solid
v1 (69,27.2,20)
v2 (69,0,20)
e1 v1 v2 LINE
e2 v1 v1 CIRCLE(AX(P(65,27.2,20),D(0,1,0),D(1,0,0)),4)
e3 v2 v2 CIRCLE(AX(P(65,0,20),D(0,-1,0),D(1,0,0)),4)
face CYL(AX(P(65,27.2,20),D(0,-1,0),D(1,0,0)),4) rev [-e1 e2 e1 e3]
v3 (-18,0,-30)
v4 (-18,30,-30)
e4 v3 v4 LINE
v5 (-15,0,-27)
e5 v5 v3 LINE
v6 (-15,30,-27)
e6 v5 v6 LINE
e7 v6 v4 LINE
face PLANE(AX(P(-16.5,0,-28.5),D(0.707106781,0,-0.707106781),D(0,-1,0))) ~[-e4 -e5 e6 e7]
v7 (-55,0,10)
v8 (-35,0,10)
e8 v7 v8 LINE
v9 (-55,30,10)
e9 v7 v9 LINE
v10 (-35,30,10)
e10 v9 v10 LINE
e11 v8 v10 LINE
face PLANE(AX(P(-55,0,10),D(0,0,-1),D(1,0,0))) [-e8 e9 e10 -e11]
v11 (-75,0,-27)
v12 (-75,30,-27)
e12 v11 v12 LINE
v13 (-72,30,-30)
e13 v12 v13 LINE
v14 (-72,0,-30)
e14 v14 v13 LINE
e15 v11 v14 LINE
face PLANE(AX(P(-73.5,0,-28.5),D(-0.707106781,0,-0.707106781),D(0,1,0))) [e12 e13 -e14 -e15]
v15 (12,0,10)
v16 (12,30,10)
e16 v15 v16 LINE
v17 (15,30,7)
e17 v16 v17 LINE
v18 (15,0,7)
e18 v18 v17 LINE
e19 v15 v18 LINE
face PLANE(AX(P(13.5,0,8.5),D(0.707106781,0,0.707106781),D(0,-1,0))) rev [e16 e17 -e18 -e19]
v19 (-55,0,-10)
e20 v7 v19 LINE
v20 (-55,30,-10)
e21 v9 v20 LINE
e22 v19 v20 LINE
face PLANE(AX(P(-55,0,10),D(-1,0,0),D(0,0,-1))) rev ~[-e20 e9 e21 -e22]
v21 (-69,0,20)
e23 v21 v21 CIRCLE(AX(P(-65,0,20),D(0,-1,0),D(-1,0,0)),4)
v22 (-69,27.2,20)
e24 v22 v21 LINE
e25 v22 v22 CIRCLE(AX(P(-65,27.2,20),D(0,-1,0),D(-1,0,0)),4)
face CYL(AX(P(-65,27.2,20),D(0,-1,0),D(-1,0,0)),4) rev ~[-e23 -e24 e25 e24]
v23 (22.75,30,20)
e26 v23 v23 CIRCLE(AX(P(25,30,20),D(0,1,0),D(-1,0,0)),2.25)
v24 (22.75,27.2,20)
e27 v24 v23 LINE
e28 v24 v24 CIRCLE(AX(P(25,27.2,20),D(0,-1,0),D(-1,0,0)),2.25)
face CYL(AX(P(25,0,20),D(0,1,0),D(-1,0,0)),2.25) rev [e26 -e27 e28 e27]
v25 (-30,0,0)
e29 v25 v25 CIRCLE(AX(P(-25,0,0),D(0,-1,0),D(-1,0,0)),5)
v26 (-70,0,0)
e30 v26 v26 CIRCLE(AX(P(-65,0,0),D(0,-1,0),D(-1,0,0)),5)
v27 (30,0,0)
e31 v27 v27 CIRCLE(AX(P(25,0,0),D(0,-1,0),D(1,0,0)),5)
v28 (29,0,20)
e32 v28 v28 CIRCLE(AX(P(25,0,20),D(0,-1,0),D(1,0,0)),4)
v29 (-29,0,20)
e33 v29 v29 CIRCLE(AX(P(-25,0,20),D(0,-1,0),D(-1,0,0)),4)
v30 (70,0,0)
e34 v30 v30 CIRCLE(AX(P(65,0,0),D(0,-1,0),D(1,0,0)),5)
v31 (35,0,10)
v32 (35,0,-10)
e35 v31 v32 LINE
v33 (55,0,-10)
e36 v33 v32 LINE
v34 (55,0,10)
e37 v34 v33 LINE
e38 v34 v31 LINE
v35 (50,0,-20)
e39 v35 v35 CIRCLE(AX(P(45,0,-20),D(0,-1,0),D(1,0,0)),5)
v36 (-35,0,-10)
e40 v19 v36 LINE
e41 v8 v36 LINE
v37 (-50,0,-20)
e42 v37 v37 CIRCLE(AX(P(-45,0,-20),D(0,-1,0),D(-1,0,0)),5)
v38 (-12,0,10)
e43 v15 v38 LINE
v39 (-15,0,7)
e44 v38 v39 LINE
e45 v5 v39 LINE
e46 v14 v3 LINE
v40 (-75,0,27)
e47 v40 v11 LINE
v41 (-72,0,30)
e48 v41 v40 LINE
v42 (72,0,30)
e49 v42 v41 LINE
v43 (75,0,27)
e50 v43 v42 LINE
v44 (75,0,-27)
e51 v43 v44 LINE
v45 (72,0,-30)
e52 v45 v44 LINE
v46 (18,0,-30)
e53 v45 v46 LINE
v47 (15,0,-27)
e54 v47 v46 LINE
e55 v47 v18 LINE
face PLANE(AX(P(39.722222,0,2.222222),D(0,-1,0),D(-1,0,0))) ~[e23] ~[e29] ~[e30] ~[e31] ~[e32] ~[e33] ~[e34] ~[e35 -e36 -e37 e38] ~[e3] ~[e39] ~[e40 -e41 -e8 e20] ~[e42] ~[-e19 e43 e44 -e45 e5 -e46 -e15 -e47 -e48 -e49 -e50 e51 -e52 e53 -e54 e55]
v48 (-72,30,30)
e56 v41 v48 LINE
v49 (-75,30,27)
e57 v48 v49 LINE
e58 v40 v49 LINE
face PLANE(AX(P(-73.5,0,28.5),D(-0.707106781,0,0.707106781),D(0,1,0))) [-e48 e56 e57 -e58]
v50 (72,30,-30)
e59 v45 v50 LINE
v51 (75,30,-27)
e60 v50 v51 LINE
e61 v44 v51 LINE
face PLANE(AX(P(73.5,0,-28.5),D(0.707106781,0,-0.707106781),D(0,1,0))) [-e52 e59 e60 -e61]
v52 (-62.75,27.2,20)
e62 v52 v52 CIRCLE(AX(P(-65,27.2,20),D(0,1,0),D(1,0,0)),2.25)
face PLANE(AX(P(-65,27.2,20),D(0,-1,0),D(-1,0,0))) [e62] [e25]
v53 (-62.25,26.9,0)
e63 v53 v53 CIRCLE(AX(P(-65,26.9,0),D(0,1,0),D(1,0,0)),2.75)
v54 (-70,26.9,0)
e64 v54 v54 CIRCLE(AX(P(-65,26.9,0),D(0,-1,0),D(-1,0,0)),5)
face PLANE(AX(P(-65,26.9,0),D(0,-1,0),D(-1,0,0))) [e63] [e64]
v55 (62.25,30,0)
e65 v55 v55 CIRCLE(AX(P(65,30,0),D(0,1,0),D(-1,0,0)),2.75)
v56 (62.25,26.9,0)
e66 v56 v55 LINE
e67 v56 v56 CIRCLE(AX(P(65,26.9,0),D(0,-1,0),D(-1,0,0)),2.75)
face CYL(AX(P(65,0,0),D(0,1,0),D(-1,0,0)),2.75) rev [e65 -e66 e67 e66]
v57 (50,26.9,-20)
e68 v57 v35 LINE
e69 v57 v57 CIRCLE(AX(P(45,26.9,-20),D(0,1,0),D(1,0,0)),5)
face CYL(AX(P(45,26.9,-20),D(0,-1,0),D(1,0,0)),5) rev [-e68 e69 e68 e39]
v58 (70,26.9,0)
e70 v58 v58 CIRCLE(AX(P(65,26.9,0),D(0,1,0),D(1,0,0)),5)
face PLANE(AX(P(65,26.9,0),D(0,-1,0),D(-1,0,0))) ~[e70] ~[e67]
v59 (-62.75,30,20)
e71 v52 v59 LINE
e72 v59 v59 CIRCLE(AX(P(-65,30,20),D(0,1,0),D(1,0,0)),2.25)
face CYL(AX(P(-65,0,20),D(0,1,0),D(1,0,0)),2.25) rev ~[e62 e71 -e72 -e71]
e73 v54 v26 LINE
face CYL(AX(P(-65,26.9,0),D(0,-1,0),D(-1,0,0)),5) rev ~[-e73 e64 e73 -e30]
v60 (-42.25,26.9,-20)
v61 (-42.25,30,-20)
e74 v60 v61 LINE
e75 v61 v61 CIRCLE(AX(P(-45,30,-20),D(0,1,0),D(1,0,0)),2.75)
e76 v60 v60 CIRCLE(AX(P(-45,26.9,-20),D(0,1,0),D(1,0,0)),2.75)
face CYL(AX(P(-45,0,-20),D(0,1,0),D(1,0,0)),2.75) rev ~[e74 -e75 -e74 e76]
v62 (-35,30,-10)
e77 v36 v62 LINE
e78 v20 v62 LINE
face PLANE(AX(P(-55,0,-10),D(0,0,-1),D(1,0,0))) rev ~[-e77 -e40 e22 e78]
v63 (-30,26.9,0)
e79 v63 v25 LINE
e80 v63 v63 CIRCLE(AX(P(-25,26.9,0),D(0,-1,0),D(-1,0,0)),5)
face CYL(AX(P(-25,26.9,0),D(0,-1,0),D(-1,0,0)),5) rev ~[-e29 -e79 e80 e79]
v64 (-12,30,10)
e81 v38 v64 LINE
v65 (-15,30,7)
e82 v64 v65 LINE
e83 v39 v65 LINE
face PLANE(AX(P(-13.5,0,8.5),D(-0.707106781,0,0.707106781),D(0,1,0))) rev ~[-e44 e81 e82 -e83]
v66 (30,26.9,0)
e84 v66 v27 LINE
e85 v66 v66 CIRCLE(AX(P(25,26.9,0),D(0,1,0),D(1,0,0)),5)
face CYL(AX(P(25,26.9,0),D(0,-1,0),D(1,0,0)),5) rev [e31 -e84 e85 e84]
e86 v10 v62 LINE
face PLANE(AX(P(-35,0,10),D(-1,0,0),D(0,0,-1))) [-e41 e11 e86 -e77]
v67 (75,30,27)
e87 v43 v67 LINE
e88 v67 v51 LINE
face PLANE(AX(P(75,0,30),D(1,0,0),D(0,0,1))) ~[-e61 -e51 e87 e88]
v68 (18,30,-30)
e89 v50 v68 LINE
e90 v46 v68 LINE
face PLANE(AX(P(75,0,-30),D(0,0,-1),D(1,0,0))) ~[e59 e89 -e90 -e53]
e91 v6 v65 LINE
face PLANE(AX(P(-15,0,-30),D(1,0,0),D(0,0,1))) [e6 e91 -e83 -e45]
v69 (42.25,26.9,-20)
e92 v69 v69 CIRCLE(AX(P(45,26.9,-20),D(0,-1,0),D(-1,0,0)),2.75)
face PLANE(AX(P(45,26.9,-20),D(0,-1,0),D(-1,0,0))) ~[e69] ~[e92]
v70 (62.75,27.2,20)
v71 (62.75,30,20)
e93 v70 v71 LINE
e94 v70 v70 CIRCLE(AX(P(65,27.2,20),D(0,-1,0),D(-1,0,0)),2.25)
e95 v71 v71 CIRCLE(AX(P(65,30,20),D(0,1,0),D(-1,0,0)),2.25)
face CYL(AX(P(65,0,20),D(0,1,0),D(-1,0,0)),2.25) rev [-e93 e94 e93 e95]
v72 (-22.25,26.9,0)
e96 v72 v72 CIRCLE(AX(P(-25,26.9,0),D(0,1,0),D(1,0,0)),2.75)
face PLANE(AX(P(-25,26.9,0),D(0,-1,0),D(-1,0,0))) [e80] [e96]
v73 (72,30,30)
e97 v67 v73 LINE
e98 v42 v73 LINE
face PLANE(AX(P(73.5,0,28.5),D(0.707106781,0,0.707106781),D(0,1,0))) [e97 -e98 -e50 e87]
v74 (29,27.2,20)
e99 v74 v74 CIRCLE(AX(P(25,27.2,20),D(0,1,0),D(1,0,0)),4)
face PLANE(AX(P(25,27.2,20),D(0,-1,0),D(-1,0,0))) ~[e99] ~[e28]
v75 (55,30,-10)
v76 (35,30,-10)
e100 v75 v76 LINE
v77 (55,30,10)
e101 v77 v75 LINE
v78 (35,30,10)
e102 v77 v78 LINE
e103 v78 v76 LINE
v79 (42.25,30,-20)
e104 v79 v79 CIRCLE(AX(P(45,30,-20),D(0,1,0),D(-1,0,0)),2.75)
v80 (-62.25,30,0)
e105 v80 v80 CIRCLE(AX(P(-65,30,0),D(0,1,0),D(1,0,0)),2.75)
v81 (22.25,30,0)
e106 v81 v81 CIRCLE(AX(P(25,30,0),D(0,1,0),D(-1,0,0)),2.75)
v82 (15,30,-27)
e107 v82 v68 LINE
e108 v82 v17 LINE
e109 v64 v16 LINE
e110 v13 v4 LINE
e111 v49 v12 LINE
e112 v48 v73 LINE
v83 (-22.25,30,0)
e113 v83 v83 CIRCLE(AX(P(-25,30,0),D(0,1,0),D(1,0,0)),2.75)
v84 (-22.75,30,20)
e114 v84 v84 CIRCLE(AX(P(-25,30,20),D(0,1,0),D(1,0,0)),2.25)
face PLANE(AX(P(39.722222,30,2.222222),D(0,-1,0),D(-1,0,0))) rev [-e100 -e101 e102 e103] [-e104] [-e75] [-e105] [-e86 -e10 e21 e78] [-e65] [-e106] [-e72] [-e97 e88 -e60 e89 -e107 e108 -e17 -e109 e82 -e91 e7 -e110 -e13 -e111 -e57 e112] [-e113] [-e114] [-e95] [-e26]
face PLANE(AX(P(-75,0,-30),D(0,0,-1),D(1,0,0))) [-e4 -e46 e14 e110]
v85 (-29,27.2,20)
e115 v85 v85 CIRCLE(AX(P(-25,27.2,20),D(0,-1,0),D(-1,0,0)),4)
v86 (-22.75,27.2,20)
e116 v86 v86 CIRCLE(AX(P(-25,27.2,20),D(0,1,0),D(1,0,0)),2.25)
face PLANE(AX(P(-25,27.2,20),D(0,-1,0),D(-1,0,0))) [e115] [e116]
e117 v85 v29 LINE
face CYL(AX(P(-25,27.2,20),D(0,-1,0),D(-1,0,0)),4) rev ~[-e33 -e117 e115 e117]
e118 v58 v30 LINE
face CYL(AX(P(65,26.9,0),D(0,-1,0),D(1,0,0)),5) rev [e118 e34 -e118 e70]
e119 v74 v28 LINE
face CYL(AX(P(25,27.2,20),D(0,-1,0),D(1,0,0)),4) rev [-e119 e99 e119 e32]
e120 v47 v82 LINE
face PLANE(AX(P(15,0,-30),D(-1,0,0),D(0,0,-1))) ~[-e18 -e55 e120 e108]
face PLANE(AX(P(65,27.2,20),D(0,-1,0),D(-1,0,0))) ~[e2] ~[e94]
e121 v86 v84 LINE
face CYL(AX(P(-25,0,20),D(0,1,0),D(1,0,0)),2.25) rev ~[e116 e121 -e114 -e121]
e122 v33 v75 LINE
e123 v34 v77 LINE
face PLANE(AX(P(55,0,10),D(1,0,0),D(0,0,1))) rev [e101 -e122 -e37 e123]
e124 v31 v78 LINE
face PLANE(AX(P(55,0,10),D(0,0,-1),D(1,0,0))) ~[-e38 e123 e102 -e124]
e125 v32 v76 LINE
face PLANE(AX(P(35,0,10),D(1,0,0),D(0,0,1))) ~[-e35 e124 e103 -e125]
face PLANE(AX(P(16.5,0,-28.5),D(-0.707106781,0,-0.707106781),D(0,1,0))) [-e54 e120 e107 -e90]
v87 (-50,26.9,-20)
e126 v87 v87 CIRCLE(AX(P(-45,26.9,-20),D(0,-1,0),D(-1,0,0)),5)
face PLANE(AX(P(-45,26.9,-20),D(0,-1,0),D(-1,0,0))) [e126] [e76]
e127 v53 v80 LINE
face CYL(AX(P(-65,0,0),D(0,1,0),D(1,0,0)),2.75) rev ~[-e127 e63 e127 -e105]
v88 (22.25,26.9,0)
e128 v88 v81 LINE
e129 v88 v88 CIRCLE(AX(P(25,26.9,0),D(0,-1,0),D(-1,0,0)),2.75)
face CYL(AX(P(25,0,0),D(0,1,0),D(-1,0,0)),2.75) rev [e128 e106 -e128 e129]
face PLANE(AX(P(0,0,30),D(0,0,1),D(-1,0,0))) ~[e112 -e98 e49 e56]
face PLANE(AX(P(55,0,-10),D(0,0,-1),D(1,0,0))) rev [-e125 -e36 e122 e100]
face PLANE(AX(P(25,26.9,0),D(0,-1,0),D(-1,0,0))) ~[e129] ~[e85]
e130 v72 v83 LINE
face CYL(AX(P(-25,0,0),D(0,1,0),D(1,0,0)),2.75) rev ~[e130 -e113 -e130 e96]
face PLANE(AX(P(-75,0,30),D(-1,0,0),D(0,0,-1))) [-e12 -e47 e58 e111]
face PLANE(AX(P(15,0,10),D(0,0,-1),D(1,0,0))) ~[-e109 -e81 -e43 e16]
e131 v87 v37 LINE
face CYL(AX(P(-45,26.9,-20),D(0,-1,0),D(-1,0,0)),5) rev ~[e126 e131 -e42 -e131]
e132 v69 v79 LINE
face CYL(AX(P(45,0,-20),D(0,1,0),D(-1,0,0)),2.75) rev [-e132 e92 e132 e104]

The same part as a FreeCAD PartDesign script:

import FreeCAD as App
import Part
import Sketcher
from FreeCAD import Vector


def edges_at(feature, points):
    """Names of the edges that pass closest to the given points."""
    edges = feature.Shape.Edges
    near = lambda p: min(range(len(edges)), key=lambda i: edges[i].distToShape(Part.Vertex(*p))[0])
    return sorted({f"Edge{near(p) + 1}" for p in points})

doc = App.newDocument("Part")
body = doc.addObject("PartDesign::Body", "Body")

# Sketch on XZ plane
sketch1 = doc.addObject("Sketcher::SketchObject", "Sketch")
body.addObject(sketch1)
sketch1.AttachmentSupport = (doc.XZ_Plane, [""])
sketch1.MapMode = "FlatFace"
sketch1.addGeometry(Part.LineSegment(Vector(0, 30, 0), Vector(0, 10, 0)), False)
sketch1.addGeometry(Part.LineSegment(Vector(0, 10, 0), Vector(-15, 10, 0)), False)
sketch1.addGeometry(Part.LineSegment(Vector(-15, 10, 0), Vector(-15, -30, 0)), False)
sketch1.addGeometry(Part.LineSegment(Vector(-15, -30, 0), Vector(-75, -30, 0)), False)
sketch1.addGeometry(Part.LineSegment(Vector(-75, -30, 0), Vector(-75, 30, 0)), False)
sketch1.addGeometry(Part.LineSegment(Vector(-75, 30, 0), Vector(0, 30, 0)), False)
sketch1.addGeometry(Part.LineSegment(Vector(-55, 10, 0), Vector(-55, -10, 0)), False)
sketch1.addGeometry(Part.LineSegment(Vector(-55, -10, 0), Vector(-35, -10, 0)), False)
sketch1.addGeometry(Part.LineSegment(Vector(-35, -10, 0), Vector(-35, 10, 0)), False)
sketch1.addGeometry(Part.LineSegment(Vector(-35, 10, 0), Vector(-55, 10, 0)), False)
sketch1.addConstraint(Sketcher.Constraint("Coincident", 0, 2, 1, 1))
sketch1.addConstraint(Sketcher.Constraint("Coincident", 1, 2, 2, 1))
sketch1.addConstraint(Sketcher.Constraint("Coincident", 2, 2, 3, 1))
sketch1.addConstraint(Sketcher.Constraint("Coincident", 3, 2, 4, 1))
sketch1.addConstraint(Sketcher.Constraint("Coincident", 4, 2, 5, 1))
sketch1.addConstraint(Sketcher.Constraint("Coincident", 5, 2, 0, 1))
sketch1.addConstraint(Sketcher.Constraint("Coincident", 6, 2, 7, 1))
sketch1.addConstraint(Sketcher.Constraint("Coincident", 7, 2, 8, 1))
sketch1.addConstraint(Sketcher.Constraint("Coincident", 8, 2, 9, 1))
sketch1.addConstraint(Sketcher.Constraint("Coincident", 9, 2, 6, 1))
sketch1.addConstraint(Sketcher.Constraint("Vertical", 0))
sketch1.addConstraint(Sketcher.Constraint("Horizontal", 1))
sketch1.addConstraint(Sketcher.Constraint("Vertical", 2))
sketch1.addConstraint(Sketcher.Constraint("Horizontal", 3))
sketch1.addConstraint(Sketcher.Constraint("Vertical", 4))
sketch1.addConstraint(Sketcher.Constraint("Horizontal", 5))
sketch1.addConstraint(Sketcher.Constraint("Vertical", 6))
sketch1.addConstraint(Sketcher.Constraint("Horizontal", 7))
sketch1.addConstraint(Sketcher.Constraint("Vertical", 8))
sketch1.addConstraint(Sketcher.Constraint("Horizontal", 9))
sketch1.addConstraint(Sketcher.Constraint("PointOnObject", 0, 2, -2))
sketch1.addConstraint(Sketcher.Constraint("Horizontal", 1, 2, 8, 2))
sketch1.addConstraint(Sketcher.Constraint("Equal", 9, 0))
sketch1.addConstraint(Sketcher.Constraint("Equal", 3, 4))
sketch1.addConstraint(Sketcher.Constraint("Equal", 0, 6))
sketch1.addConstraint(Sketcher.Constraint("DistanceX", 1, 2, 1, 1, 15.0))
sketch1.addConstraint(Sketcher.Constraint("DistanceX", 3, 2, 3, 1, 60.0))
sketch1.addConstraint(Sketcher.Constraint("DistanceX", 7, 1, 7, 2, 20.0))
sketch1.addConstraint(Sketcher.Constraint("DistanceY", -1, 1, 0, 2, 10.0))
sketch1.addConstraint(Sketcher.Constraint("DistanceX", 6, 2, -1, 1, 55.0))
pad1 = doc.addObject("PartDesign::Pad", "Pad")
body.addObject(pad1)
pad1.Profile = sketch1
pad1.Length = 30
pad1.Reversed = True

# Sketch on XZ plane
sketch2 = doc.addObject("Sketcher::SketchObject", "Sketch001")
body.addObject(sketch2)
sketch2.AttachmentSupport = (doc.XZ_Plane, [""])
sketch2.MapMode = "FlatFace"
sketch2.addGeometry(Part.Circle(Vector(-45, -20, 0), Vector(0, 0, 1), 2.8), False)
sketch2.addGeometry(Part.Circle(Vector(-25, 0, 0), Vector(0, 0, 1), 2.8), False)
sketch2.addGeometry(Part.Circle(Vector(-65, 0, 0), Vector(0, 0, 1), 2.8), False)
sketch2.addConstraint(Sketcher.Constraint("Equal", 0, 1))
sketch2.addConstraint(Sketcher.Constraint("Equal", 1, 2))
sketch2.addConstraint(Sketcher.Constraint("PointOnObject", 1, 3, -1))
sketch2.addConstraint(Sketcher.Constraint("PointOnObject", 2, 3, -1))
sketch2.addConstraint(Sketcher.Constraint("Diameter", 0, 5.5))
sketch2.addConstraint(Sketcher.Constraint("DistanceX", 0, 3, -1, 1, 45.0))
sketch2.addConstraint(Sketcher.Constraint("DistanceY", 0, 3, -1, 1, 20.0))
sketch2.addConstraint(Sketcher.Constraint("DistanceX", 1, 3, -1, 1, 25.0))
sketch2.addConstraint(Sketcher.Constraint("DistanceX", 2, 3, -1, 1, 65.0))
doc.recompute()
hole = doc.addObject("PartDesign::Hole", "Hole")
body.addObject(hole)
hole.Profile = sketch2
hole.ThreadType = "None"
hole.Diameter = 5.5
hole.DepthType = "ThroughAll"
hole.HoleCutType = "Counterbore"
hole.HoleCutDiameter = 10
hole.HoleCutDepth = 26.9

# Sketch on XZ plane
sketch3 = doc.addObject("Sketcher::SketchObject", "Sketch002")
body.addObject(sketch3)
sketch3.AttachmentSupport = (doc.XZ_Plane, [""])
sketch3.MapMode = "FlatFace"
sketch3.addGeometry(Part.Circle(Vector(-25, 20, 0), Vector(0, 0, 1), 2.2), False)
sketch3.addGeometry(Part.Circle(Vector(-65, 20, 0), Vector(0, 0, 1), 2.2), False)
sketch3.addConstraint(Sketcher.Constraint("Equal", 0, 1))
sketch3.addConstraint(Sketcher.Constraint("Horizontal", 0, 3, 1, 3))
sketch3.addConstraint(Sketcher.Constraint("Diameter", 0, 4.5))
sketch3.addConstraint(Sketcher.Constraint("DistanceX", 0, 3, -1, 1, 25.0))
sketch3.addConstraint(Sketcher.Constraint("DistanceY", -1, 1, 0, 3, 20.0))
sketch3.addConstraint(Sketcher.Constraint("DistanceX", 1, 3, -1, 1, 65.0))
doc.recompute()
hole2 = doc.addObject("PartDesign::Hole", "Hole001")
body.addObject(hole2)
hole2.Profile = sketch3
hole2.ThreadType = "None"
hole2.Diameter = 4.5
hole2.DepthType = "ThroughAll"
hole2.HoleCutType = "Counterbore"
hole2.HoleCutDiameter = 8
hole2.HoleCutDepth = 27.2
doc.recompute()

chamfer = doc.addObject("PartDesign::Chamfer", "Chamfer")
body.addObject(chamfer)
chamfer.Base = (hole2, edges_at(hole2, [
    (-75, 15, -30),
    (-15, 15, -30),
    (-15, 15, 10),
    (-75, 15, 30),
]))
chamfer.Size = 3
doc.recompute()

mirrored = doc.addObject("PartDesign::Mirrored", "Mirrored")
body.addObject(mirrored)
mirrored.Originals = [pad1, hole, hole2]
mirrored.MirrorPlane = (doc.YZ_Plane, [""])
body.Tip = mirrored
doc.recompute()

chamfer2 = doc.addObject("PartDesign::Chamfer", "Chamfer001")
body.addObject(chamfer2)
chamfer2.Base = (mirrored, edges_at(mirrored, [
    (75, 15, -30),
    (15, 15, -30),
    (15, 15, 10),
    (75, 15, 30),
]))
chamfer2.Size = 3

doc.recompute()
